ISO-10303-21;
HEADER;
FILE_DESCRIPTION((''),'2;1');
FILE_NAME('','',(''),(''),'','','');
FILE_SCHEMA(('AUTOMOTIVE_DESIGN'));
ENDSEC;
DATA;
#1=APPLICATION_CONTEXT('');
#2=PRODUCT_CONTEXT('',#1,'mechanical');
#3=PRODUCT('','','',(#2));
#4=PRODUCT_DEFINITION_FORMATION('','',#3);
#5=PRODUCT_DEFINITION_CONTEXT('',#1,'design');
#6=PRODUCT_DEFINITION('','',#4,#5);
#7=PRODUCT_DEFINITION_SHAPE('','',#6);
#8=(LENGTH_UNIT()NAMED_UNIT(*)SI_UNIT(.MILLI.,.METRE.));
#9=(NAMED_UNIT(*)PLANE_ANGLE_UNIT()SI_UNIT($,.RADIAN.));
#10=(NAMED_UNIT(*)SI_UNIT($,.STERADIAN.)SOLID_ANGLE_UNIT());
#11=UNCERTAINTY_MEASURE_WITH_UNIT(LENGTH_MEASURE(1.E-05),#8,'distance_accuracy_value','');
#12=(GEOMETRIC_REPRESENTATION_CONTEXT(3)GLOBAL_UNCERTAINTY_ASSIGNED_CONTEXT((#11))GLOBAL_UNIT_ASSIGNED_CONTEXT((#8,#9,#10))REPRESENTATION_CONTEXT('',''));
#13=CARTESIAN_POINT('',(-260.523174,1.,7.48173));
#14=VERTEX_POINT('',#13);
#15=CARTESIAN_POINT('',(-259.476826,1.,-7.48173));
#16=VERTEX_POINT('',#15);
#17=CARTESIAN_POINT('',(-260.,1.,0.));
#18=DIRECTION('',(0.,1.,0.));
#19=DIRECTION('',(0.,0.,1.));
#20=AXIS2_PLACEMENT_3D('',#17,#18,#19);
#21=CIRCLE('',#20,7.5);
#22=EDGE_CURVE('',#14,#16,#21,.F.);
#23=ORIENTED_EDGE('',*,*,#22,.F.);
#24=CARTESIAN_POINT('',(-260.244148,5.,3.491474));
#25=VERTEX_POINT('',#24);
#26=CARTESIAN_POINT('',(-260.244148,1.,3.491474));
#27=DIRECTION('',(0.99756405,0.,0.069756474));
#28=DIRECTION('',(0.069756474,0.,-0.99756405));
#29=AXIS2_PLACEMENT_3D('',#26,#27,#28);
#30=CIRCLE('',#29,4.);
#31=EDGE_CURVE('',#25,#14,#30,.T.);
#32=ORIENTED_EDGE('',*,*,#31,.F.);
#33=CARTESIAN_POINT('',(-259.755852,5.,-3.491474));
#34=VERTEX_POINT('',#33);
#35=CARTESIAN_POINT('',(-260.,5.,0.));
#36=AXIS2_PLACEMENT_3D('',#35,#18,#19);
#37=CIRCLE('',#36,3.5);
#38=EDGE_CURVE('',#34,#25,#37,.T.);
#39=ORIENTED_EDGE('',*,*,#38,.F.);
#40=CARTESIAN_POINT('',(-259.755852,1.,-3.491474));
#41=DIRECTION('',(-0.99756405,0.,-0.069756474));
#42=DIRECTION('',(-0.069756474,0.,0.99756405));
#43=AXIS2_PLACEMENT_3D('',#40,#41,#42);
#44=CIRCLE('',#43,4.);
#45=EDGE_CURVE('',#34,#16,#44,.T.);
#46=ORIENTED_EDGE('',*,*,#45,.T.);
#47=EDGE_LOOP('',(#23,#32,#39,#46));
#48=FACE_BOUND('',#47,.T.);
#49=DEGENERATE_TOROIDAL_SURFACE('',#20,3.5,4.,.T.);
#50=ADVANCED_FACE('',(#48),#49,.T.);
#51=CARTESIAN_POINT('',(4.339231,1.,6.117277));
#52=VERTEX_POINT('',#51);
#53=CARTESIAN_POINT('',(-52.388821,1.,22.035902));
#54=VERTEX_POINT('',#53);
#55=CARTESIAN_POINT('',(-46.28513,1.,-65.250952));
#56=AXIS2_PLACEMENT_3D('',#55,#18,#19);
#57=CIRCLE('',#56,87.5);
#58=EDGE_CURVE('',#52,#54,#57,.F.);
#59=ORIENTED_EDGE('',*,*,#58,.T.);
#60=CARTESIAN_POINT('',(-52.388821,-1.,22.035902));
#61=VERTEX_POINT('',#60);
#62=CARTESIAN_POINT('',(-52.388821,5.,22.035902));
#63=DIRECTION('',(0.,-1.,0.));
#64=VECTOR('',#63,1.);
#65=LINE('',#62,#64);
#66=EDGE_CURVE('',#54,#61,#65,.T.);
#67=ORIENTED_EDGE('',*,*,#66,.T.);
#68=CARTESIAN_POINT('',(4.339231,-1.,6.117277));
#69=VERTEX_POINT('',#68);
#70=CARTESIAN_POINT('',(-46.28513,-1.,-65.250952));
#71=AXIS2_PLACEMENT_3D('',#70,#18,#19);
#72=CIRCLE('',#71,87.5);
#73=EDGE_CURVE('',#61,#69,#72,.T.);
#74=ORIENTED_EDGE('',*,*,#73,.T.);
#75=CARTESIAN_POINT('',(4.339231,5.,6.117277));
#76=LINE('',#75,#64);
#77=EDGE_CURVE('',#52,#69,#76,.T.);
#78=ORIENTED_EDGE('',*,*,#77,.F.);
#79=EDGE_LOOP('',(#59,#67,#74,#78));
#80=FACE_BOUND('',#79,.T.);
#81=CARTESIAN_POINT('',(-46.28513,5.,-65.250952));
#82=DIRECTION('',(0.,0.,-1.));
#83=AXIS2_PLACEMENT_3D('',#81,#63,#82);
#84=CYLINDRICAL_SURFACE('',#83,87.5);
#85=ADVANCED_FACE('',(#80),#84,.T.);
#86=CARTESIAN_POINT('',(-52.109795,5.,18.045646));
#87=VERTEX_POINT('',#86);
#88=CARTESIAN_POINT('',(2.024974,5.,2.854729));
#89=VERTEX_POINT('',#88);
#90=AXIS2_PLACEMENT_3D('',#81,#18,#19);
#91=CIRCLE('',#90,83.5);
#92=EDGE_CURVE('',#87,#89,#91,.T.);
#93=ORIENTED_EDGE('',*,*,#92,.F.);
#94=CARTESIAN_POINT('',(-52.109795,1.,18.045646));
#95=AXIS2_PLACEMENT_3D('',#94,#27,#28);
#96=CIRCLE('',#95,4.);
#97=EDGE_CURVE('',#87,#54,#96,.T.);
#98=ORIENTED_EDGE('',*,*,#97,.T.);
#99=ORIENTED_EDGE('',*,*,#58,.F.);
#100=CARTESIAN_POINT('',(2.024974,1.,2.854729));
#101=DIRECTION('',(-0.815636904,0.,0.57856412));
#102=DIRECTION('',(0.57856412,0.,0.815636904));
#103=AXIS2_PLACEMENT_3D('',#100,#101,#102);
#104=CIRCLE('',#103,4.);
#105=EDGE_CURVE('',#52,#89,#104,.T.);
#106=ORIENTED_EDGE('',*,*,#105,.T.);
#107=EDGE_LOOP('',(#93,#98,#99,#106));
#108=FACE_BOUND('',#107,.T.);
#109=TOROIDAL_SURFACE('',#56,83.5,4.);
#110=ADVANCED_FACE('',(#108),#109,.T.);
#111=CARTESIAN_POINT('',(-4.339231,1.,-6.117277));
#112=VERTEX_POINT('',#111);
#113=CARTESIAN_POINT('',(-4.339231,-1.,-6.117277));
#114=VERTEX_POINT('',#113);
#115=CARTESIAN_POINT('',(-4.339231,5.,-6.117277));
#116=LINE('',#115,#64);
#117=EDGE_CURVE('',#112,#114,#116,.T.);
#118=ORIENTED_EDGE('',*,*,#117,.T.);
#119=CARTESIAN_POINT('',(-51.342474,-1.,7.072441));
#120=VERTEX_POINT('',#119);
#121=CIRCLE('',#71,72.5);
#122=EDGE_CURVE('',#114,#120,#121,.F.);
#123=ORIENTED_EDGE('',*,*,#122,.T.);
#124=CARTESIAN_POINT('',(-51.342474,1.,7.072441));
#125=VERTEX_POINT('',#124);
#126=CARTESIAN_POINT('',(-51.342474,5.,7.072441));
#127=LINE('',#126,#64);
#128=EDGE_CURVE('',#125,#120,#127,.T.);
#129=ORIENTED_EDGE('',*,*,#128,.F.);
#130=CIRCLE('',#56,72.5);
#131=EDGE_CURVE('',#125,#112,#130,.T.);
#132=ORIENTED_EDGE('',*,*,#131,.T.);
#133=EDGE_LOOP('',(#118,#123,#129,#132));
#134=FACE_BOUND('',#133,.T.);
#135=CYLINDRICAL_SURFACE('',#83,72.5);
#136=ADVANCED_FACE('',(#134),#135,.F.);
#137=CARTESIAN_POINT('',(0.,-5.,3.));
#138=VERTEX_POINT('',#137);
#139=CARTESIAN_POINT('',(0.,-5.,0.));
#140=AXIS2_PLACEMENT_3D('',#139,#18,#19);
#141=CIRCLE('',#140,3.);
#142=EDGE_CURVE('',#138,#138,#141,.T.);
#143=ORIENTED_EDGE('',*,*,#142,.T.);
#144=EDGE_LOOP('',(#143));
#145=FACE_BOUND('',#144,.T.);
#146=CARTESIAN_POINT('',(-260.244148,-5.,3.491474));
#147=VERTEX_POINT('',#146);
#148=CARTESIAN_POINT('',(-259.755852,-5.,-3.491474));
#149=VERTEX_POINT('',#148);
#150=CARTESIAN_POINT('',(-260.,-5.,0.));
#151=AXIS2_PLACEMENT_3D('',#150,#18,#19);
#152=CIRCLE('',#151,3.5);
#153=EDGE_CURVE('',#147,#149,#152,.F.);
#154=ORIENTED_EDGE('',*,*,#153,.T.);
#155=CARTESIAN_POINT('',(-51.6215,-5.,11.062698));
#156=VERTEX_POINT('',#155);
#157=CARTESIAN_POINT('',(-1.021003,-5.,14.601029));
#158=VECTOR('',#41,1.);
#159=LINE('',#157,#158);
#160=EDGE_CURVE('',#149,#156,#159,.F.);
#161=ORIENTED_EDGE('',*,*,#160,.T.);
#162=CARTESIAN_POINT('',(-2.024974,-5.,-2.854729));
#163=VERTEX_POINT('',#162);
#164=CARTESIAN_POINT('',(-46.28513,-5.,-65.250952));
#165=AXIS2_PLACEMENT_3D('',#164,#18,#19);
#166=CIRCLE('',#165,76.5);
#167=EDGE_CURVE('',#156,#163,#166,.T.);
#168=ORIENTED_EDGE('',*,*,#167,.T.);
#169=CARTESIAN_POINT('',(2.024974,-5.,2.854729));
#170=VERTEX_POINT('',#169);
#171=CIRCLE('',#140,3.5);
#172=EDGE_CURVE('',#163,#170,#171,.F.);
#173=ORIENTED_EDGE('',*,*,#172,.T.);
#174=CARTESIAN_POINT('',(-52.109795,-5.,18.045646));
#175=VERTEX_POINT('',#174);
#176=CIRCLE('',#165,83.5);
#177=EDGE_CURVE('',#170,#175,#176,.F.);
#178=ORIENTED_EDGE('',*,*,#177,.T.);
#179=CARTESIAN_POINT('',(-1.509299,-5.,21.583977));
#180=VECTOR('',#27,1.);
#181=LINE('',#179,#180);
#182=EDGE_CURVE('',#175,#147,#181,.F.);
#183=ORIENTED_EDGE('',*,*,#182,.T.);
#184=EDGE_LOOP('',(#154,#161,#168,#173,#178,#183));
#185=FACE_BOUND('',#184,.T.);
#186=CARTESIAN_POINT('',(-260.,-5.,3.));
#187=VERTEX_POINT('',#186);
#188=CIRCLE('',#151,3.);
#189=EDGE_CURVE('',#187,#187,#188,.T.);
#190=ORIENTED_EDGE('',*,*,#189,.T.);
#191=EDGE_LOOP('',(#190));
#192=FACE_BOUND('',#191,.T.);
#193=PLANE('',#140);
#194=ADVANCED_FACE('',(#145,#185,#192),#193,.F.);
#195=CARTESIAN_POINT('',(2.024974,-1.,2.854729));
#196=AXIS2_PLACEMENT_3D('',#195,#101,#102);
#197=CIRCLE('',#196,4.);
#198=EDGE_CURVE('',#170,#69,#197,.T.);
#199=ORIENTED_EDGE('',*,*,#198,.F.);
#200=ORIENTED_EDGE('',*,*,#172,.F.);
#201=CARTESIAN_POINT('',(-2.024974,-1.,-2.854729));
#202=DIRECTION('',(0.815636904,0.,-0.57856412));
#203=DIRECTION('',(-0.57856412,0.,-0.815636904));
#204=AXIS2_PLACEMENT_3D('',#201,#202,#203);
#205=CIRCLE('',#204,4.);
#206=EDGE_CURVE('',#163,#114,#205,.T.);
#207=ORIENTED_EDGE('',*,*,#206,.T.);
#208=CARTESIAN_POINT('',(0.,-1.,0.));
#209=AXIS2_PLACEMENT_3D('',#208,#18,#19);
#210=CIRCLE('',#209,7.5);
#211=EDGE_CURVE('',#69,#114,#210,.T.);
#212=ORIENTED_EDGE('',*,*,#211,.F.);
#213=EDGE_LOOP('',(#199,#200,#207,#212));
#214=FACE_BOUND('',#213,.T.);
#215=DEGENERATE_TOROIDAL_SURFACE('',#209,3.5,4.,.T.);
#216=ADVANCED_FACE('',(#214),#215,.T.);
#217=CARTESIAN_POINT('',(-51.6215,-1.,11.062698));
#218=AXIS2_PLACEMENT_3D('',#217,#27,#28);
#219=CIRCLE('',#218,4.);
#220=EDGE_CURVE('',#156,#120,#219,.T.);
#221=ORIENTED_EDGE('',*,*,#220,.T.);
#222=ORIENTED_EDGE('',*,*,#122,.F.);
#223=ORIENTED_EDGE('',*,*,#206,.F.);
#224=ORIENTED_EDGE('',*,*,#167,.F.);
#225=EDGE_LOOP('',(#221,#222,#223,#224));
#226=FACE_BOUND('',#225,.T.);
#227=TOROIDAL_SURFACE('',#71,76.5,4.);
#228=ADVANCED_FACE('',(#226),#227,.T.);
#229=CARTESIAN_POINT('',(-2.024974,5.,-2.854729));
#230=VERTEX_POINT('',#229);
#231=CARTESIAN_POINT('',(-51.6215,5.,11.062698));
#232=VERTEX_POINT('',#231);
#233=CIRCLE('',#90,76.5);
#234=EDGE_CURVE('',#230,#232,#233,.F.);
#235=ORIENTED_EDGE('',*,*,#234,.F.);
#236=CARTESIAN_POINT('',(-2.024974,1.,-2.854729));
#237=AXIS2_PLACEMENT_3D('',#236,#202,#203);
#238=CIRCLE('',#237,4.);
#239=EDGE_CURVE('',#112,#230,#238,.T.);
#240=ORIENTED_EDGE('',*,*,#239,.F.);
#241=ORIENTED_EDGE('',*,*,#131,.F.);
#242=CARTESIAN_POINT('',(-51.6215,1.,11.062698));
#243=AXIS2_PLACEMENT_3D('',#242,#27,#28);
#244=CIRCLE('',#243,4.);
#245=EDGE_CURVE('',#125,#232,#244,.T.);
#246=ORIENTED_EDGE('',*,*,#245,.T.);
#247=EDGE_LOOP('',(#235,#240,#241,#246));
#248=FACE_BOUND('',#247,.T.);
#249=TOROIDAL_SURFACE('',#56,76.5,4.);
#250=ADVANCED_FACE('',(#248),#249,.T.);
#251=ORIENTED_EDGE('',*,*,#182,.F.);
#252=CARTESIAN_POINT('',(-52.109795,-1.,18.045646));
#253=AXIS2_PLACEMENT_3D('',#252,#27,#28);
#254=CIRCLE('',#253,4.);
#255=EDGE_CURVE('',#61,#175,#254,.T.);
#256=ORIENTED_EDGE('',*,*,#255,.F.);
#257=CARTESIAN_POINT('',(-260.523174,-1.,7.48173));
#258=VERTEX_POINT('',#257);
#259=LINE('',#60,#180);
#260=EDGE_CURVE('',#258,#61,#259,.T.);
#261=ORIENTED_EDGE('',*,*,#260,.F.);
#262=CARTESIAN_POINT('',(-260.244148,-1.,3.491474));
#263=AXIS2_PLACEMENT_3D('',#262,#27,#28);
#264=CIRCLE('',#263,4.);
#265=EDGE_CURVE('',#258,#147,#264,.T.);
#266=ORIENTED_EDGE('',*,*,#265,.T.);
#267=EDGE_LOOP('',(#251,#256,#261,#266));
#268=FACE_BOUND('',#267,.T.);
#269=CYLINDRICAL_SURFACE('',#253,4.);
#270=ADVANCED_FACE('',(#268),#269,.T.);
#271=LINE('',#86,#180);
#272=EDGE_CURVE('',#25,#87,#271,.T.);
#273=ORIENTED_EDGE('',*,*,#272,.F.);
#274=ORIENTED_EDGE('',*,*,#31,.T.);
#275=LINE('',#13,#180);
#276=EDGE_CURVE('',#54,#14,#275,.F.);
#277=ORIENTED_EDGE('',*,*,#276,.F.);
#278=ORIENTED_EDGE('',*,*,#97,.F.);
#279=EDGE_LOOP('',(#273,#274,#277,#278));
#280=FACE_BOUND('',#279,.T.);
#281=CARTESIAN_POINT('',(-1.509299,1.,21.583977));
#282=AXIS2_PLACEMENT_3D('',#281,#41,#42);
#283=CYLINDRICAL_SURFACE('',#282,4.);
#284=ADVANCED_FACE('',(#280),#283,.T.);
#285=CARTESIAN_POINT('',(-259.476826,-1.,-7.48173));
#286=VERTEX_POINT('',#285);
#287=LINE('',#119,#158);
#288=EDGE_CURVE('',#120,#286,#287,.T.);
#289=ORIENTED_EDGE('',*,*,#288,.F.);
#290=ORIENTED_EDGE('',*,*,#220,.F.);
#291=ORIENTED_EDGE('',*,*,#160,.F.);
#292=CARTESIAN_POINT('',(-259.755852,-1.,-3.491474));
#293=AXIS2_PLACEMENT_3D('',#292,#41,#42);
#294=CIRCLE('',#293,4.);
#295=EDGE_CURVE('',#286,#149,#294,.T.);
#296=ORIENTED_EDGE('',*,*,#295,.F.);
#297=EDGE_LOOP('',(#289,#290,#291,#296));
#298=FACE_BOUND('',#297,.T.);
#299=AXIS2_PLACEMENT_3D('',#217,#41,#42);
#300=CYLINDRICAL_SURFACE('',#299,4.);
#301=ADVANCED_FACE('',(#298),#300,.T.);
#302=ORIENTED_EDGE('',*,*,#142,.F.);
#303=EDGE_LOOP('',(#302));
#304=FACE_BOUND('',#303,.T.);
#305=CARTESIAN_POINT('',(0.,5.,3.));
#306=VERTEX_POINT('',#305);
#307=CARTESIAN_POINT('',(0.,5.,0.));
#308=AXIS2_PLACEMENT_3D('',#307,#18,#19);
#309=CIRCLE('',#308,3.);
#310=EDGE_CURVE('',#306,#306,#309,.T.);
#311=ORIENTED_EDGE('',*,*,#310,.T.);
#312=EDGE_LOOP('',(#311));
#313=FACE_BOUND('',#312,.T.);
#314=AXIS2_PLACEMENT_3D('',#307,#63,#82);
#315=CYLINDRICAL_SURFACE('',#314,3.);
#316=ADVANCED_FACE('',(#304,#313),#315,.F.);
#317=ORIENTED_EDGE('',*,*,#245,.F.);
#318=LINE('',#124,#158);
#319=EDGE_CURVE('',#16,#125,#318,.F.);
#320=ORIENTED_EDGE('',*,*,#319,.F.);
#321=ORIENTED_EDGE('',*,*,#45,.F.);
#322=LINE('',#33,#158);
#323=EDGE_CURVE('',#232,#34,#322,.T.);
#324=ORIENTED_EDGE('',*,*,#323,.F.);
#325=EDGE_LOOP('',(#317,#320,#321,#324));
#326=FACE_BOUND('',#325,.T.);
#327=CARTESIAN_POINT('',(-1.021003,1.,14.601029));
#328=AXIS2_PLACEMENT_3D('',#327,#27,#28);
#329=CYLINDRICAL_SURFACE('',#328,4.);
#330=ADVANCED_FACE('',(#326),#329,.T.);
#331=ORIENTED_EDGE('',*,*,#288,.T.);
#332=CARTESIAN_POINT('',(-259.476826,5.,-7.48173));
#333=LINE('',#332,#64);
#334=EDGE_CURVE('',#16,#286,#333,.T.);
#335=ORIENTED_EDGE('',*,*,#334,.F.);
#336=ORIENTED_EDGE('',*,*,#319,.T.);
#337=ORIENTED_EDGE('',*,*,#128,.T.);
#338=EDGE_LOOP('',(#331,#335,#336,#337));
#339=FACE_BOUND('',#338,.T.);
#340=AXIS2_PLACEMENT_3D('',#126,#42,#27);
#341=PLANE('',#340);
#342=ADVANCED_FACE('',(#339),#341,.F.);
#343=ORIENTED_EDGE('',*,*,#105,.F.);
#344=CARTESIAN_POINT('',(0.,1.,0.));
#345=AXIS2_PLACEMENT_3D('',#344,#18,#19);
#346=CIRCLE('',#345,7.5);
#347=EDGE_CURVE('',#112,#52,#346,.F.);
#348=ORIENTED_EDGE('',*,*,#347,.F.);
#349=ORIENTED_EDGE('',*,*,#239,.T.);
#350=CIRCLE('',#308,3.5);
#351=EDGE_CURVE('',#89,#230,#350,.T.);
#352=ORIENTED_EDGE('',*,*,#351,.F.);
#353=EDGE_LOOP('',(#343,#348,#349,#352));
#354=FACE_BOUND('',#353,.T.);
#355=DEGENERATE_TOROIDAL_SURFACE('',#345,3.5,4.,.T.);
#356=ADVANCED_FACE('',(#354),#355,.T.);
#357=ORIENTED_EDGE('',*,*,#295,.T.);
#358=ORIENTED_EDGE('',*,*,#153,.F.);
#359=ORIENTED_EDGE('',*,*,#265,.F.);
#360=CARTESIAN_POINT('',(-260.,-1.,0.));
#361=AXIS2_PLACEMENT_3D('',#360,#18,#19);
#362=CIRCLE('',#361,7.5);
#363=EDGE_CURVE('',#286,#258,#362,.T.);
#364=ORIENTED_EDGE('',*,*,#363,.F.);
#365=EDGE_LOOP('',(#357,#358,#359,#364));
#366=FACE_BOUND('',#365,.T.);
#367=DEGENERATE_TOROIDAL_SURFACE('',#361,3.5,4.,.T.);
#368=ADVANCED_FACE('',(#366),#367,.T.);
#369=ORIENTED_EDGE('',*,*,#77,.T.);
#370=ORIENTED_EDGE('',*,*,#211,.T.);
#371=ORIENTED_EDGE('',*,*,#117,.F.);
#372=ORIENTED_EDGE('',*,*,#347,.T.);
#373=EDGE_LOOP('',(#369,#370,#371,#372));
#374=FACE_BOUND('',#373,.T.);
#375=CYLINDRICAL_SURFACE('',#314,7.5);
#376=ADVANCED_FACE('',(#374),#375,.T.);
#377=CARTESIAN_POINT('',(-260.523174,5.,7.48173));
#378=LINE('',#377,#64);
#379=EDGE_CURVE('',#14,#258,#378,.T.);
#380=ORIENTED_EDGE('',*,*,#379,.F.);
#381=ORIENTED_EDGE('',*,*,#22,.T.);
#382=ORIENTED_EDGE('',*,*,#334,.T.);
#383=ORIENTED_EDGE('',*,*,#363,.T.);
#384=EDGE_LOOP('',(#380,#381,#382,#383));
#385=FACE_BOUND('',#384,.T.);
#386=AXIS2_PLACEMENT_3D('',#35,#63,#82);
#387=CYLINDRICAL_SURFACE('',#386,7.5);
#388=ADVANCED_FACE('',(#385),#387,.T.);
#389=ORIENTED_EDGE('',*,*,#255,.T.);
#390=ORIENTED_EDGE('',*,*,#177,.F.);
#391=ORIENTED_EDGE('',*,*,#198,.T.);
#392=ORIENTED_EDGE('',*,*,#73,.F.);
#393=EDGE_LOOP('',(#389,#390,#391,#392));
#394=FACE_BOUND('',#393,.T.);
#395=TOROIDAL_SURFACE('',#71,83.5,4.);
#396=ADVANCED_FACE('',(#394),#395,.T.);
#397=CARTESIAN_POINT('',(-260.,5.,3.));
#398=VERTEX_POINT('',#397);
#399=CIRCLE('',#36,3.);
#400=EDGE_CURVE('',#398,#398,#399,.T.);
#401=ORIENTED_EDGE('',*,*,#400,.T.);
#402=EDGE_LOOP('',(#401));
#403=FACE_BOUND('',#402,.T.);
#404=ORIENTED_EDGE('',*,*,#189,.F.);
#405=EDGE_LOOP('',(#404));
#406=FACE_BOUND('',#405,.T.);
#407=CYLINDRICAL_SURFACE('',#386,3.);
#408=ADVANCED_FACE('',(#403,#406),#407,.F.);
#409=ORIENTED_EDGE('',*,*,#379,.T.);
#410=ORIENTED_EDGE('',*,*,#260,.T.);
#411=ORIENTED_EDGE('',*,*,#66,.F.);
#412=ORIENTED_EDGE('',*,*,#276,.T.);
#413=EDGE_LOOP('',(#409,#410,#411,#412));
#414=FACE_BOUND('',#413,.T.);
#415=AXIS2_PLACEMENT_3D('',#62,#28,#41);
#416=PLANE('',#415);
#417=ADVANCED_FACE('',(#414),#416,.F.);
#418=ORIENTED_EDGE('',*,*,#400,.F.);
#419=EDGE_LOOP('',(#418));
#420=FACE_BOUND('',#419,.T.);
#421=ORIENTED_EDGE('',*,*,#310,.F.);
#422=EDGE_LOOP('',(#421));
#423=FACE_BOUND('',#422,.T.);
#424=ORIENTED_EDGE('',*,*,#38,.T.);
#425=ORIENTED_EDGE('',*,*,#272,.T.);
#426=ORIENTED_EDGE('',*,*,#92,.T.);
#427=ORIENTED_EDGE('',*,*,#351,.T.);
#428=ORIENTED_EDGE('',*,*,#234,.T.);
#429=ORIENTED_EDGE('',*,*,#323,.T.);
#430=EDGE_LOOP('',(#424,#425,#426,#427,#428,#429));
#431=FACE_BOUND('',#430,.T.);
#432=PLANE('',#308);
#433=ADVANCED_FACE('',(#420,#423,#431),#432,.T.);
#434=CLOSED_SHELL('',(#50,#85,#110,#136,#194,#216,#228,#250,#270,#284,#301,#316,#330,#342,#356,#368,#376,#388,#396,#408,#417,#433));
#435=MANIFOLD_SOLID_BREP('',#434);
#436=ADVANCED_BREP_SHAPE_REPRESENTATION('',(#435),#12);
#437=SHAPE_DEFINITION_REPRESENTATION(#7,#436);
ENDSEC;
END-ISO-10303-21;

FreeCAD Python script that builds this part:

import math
import FreeCAD as App
import Part
import Sketcher
Q = App.Units.Quantity


def edges_at(feature, points):
    """Names of the edges that pass closest to the given points."""
    edges = feature.Shape.Edges
    near = lambda p: min(range(len(edges)), key=lambda i: edges[i].distToShape(Part.Vertex(*p))[0])
    return sorted({f"Edge{near(p) + 1}" for p in points})

doc = App.newDocument("Part")
params = doc.addObject("Spreadsheet::Sheet", "Params")
for row, (alias, value) in enumerate([
    ("sketch1_diameter", "6 mm"),
    ("sketch1_radius", "87.5 mm"),
    ("sketch1_radius2", "7.5 mm"),
    ("pad1_length", "10 mm"),
    ("fillet_radius", "4 mm"),
], start=1):
    params.set(f"A{row}", alias)
    params.set(f"B{row}", "=" + value)
    params.setAlias(f"B{row}", alias)

body = doc.addObject("PartDesign::Body", "Body")

# Sketch on XZ plane
sketch1 = body.newObject("Sketcher::SketchObject", "Sketch")
sketch1.AttachmentSupport = (doc.getObject("XZ_Plane"), [""])
sketch1.MapMode = "FlatFace"
sketch1.addGeometry([
    Part.LineSegment(App.Vector(-260.5, 7.5, 0), App.Vector(-52.4, 22, 0)),  # 0
    Part.ArcOfCircle(Part.Circle(App.Vector(-46.3, -65.3, 0), App.Vector(0, 0, 1), 87.5), math.radians(55), math.radians(94)),  # 1
    Part.ArcOfCircle(Part.Circle(App.Vector(0, 0, 0), App.Vector(0, 0, 1), 7.5), math.radians(-125), math.radians(55)),  # 2
    Part.ArcOfCircle(Part.Circle(App.Vector(-46.3, -65.3, 0), App.Vector(0, 0, 1), 72.5), math.radians(55), math.radians(94)),  # 3
    Part.LineSegment(App.Vector(-51.3, 7.1, 0), App.Vector(-259.5, -7.5, 0)),  # 4
    Part.ArcOfCircle(Part.Circle(App.Vector(-260, 0, 0), App.Vector(0, 0, 1), 7.5), math.radians(94), math.radians(274)),  # 5
    Part.Circle(App.Vector(-260, 0, 0), App.Vector(0, 0, 1), 3),  # 6
    Part.Circle(App.Vector(0, 0, 0), App.Vector(0, 0, 1), 3),  # 7
], False)
sketch1.addConstraint([
    Sketcher.Constraint("Tangent", 0, 2, 1, 2),
    Sketcher.Constraint("Tangent", 1, 1, 2, 2),
    Sketcher.Constraint("Tangent", 2, 1, 3, 1),
    Sketcher.Constraint("Tangent", 3, 2, 4, 1),
    Sketcher.Constraint("Tangent", 4, 2, 5, 2),
    Sketcher.Constraint("Tangent", 5, 1, 0, 1),
    Sketcher.Constraint("Coincident", 2, 3, -1, 1),
    Sketcher.Constraint("Coincident", 7, 3, -1, 1),
    Sketcher.Constraint("Coincident", 3, 3, 1, 3),
    Sketcher.Constraint("Coincident", 6, 3, 5, 3),
    Sketcher.Constraint("Equal", 2, 5),
    Sketcher.Constraint("Equal", 6, 7),
    Sketcher.Constraint("PointOnObject", 5, 3, -1),
    Sketcher.Constraint("Diameter", 6, 6.0),
    Sketcher.Constraint("Radius", 1, 87.5),
    Sketcher.Constraint("Radius", 2, 7.5),
    Sketcher.Constraint("Angle", 0, Q("4 deg")),
    Sketcher.Constraint("DistanceX", 5, 3, -1, 1, 260.0),
])
sketch1.setExpression("Constraints[13]", "Params.sketch1_diameter")
sketch1.setExpression("Constraints[14]", "Params.sketch1_radius")
sketch1.setExpression("Constraints[15]", "Params.sketch1_radius2")
pad1 = body.newObject("PartDesign::Pad", "Pad")
pad1.Profile = sketch1
pad1.setExpression("Length", "Params.pad1_length")
pad1.Midplane = True
doc.recompute()

fillet = body.newObject("PartDesign::Fillet", "Fillet")
fillet.Base = (pad1, edges_at(pad1, [
    (-155.41, 5, -0.205),
    (-267.482, 5, -0.523),
    (-156.456, 5, 14.759),
    (-22.645, 5, 18.995),
    (6.117, 5, -4.339),
    (-22.645, -5, 18.995),
    (-156.456, -5, 14.759),
    (-267.482, -5, -0.523),
    (-155.41, -5, -0.205),
    (-26.697, -5, 4.553),
    (6.117, -5, -4.339),
    (-26.697, 5, 4.553),
]))
fillet.setExpression("Radius", "Params.fillet_radius")

doc.recompute()
